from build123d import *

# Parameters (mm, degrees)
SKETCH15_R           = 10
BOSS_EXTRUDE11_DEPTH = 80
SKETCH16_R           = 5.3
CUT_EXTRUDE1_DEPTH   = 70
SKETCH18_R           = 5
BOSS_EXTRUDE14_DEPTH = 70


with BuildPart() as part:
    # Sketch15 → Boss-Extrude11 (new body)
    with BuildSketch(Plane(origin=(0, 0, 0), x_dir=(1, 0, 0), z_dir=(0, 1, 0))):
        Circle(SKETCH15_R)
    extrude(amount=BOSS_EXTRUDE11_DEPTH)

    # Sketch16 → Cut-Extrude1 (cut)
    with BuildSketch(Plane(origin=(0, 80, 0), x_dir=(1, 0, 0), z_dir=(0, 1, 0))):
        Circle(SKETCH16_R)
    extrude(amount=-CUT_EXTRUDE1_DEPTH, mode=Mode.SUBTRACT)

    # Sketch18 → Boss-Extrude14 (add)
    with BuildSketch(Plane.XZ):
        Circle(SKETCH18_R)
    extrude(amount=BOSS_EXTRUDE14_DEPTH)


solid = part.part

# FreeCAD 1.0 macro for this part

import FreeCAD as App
import Part
import Sketcher

V = App.Vector
Q = App.Units.Quantity

doc = App.newDocument("Part")
params = doc.addObject("Spreadsheet::Sheet", "Params")
for row, (alias, value) in enumerate([
    ("sketch1_diameter", "20 mm"),
    ("pad1_length", "80 mm"),
    ("sketch2_diameter", "10.6 mm"),
    ("pocket1_length", "70 mm"),
    ("sketch3_diameter", "10 mm"),
    ("pad2_length", "70 mm"),
], start=1):
    params.set(f"A{row}", alias)
    params.set(f"B{row}", "=" + value)
    params.setAlias(f"B{row}", alias)

body = doc.addObject("PartDesign::Body", "Body")

# Sketch on XZ plane
sketch1 = doc.addObject("Sketcher::SketchObject", "Sketch")
body.addObject(sketch1)
sketch1.AttachmentSupport = (doc.XZ_Plane, [""])
sketch1.MapMode = "FlatFace"
sketch1.addGeometry(Part.Circle(V(0, 0, 0), V(0, 0, 1), 10), False)
sketch1.addConstraint([
    Sketcher.Constraint("Coincident", 0, 3, -1, 1),
    Sketcher.Constraint("Diameter", 0, Q("20 mm")),
])
sketch1.setExpression("Constraints[1]", "Params.sketch1_diameter")
pad1 = doc.addObject("PartDesign::Pad", "Pad")
body.addObject(pad1)
pad1.Profile = sketch1
pad1.setExpression("Length", "Params.pad1_length")
pad1.Reversed = True

# Sketch on XZ plane
sketch2 = doc.addObject("Sketcher::SketchObject", "Sketch001")
body.addObject(sketch2)
sketch2.AttachmentSupport = (doc.XZ_Plane, [""])
sketch2.MapMode = "FlatFace"
sketch2.AttachmentOffset = App.Placement(V(0, 0, -80), App.Rotation())
sketch2.addGeometry(Part.Circle(V(0, 0, 0), V(0, 0, 1), 5), False)
sketch2.addConstraint([
    Sketcher.Constraint("Coincident", 0, 3, -1, 1),
    Sketcher.Constraint("Diameter", 0, Q("10.6 mm")),
])
sketch2.setExpression("Constraints[1]", "Params.sketch2_diameter")
pocket1 = doc.addObject("PartDesign::Pocket", "Pocket")
body.addObject(pocket1)
pocket1.Profile = sketch2
pocket1.setExpression("Length", "Params.pocket1_length")
pocket1.Reversed = True

# Sketch on XZ plane
sketch3 = doc.addObject("Sketcher::SketchObject", "Sketch002")
body.addObject(sketch3)
sketch3.AttachmentSupport = (doc.XZ_Plane, [""])
sketch3.MapMode = "FlatFace"
sketch3.addGeometry(Part.Circle(V(0, 0, 0), V(0, 0, 1), 5), False)
sketch3.addConstraint([
    Sketcher.Constraint("Coincident", 0, 3, -1, 1),
    Sketcher.Constraint("Diameter", 0, Q("10 mm")),
])
sketch3.setExpression("Constraints[1]", "Params.sketch3_diameter")
pad2 = doc.addObject("PartDesign::Pad", "Pad001")
body.addObject(pad2)
pad2.Profile = sketch3
pad2.setExpression("Length", "Params.pad2_length")

doc.recompute()
